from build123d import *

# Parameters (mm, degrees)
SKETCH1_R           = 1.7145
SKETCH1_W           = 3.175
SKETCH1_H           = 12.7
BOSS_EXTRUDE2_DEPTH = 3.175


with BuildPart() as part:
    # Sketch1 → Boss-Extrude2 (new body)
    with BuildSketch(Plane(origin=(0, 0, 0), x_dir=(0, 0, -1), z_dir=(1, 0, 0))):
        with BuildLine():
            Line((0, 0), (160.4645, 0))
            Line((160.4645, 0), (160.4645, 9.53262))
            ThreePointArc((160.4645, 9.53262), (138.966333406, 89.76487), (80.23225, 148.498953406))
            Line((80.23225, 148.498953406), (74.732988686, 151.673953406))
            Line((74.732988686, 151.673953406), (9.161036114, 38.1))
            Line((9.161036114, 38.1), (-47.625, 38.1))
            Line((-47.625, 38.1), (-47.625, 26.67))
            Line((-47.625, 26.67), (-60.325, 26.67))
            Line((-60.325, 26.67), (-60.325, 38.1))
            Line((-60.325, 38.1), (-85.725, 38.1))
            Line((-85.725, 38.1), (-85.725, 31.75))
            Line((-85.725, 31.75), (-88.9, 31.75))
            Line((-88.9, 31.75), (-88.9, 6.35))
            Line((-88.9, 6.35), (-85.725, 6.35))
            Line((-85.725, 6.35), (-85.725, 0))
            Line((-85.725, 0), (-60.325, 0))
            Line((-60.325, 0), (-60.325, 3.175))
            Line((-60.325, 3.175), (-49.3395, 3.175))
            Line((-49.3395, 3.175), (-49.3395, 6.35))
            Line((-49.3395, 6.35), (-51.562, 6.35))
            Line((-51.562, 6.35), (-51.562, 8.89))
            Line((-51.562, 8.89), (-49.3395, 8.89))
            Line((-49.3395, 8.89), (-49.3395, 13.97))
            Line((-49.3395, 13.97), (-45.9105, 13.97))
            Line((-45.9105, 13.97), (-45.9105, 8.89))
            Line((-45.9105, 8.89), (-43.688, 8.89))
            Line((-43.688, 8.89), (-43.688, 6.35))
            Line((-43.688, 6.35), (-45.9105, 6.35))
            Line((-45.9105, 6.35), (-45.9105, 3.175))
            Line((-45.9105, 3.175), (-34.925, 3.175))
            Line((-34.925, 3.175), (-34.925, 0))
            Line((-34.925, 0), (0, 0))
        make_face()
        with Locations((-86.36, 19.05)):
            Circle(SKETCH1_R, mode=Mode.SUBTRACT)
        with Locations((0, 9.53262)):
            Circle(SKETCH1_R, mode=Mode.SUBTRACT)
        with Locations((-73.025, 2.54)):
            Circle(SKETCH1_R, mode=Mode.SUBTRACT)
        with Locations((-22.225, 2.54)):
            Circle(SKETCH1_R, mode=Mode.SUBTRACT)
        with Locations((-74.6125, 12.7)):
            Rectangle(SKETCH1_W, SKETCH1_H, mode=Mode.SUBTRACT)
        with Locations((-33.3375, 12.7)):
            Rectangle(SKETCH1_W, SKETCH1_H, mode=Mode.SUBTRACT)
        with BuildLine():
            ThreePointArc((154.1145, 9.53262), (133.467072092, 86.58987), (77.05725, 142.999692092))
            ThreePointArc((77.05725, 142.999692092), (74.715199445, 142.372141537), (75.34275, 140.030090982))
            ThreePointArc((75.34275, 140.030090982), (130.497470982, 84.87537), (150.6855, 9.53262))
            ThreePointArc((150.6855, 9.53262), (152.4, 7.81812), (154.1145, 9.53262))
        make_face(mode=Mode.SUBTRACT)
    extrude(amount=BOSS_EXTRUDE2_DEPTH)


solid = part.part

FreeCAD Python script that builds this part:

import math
import FreeCAD as App
import Part
import Sketcher
from FreeCAD import Vector
Q = App.Units.Quantity

doc = App.newDocument("Part")
body = doc.addObject("PartDesign::Body", "Body")

# Sketch on YZ plane
sketch1 = doc.addObject("Sketcher::SketchObject", "Sketch")
body.addObject(sketch1)
sketch1.AttachmentSupport = (doc.YZ_Plane, [""])
sketch1.MapMode = "FlatFace"
sketch1.addGeometry([
    Part.LineSegment(Vector(0, -160.4645, 0), Vector(9.53262, -160.4645, 0)),  # 0
    Part.ArcOfCircle(Part.Circle(Vector(9.53262, 0, 0), Vector(0, 0, 1), 160.4645), math.radians(-90), math.radians(-30)),  # 1
    Part.LineSegment(Vector(148.498953, -80.23225, 0), Vector(151.673953, -74.732989, 0)),  # 2
    Part.LineSegment(Vector(151.673953, -74.732989, 0), Vector(38.1, -9.161036, 0)),  # 3
    Part.LineSegment(Vector(38.1, -9.161036, 0), Vector(38.1, 47.625, 0)),  # 4
    Part.LineSegment(Vector(38.1, 47.625, 0), Vector(26.67, 47.625, 0)),  # 5
    Part.LineSegment(Vector(26.67, 47.625, 0), Vector(26.67, 60.325, 0)),  # 6
    Part.LineSegment(Vector(26.67, 60.325, 0), Vector(38.1, 60.325, 0)),  # 7
    Part.LineSegment(Vector(38.1, 60.325, 0), Vector(38.1, 85.725, 0)),  # 8
    Part.LineSegment(Vector(38.1, 85.725, 0), Vector(31.75, 85.725, 0)),  # 9
    Part.LineSegment(Vector(31.75, 85.725, 0), Vector(31.75, 88.9, 0)),  # 10
    Part.LineSegment(Vector(31.75, 88.9, 0), Vector(6.35, 88.9, 0)),  # 11
    Part.LineSegment(Vector(6.35, 88.9, 0), Vector(6.35, 85.725, 0)),  # 12
    Part.LineSegment(Vector(6.35, 85.725, 0), Vector(0, 85.725, 0)),  # 13
    Part.LineSegment(Vector(0, 85.725, 0), Vector(0, 60.325, 0)),  # 14
    Part.LineSegment(Vector(0, 60.325, 0), Vector(3.175, 60.325, 0)),  # 15
    Part.LineSegment(Vector(3.175, 60.325, 0), Vector(3.175, 49.3395, 0)),  # 16
    Part.LineSegment(Vector(3.175, 49.3395, 0), Vector(6.35, 49.3395, 0)),  # 17
    Part.LineSegment(Vector(6.35, 49.3395, 0), Vector(6.35, 51.562, 0)),  # 18
    Part.LineSegment(Vector(6.35, 51.562, 0), Vector(8.89, 51.562, 0)),  # 19
    Part.LineSegment(Vector(8.89, 51.562, 0), Vector(8.89, 49.3395, 0)),  # 20
    Part.LineSegment(Vector(8.89, 49.3395, 0), Vector(13.97, 49.3395, 0)),  # 21
    Part.LineSegment(Vector(13.97, 49.3395, 0), Vector(13.97, 45.9105, 0)),  # 22
    Part.LineSegment(Vector(13.97, 45.9105, 0), Vector(8.89, 45.9105, 0)),  # 23
    Part.LineSegment(Vector(8.89, 45.9105, 0), Vector(8.89, 43.688, 0)),  # 24
    Part.LineSegment(Vector(8.89, 43.688, 0), Vector(6.35, 43.688, 0)),  # 25
    Part.LineSegment(Vector(6.35, 43.688, 0), Vector(6.35, 45.9105, 0)),  # 26
    Part.LineSegment(Vector(6.35, 45.9105, 0), Vector(3.175, 45.9105, 0)),  # 27
    Part.LineSegment(Vector(3.175, 45.9105, 0), Vector(3.175, 34.925, 0)),  # 28
    Part.LineSegment(Vector(3.175, 34.925, 0), Vector(0, 34.925, 0)),  # 29
    Part.LineSegment(Vector(0, 34.925, 0), Vector(0, -160.4645, 0)),  # 30
    Part.Circle(Vector(2.54, 73.025, 0), Vector(0, 0, 1), 1.7145),  # 31
    Part.LineSegment(Vector(6.35, 73.025, 0), Vector(6.35, 76.2, 0)),  # 32
    Part.LineSegment(Vector(6.35, 76.2, 0), Vector(19.05, 76.2, 0)),  # 33
    Part.LineSegment(Vector(19.05, 76.2, 0), Vector(19.05, 73.025, 0)),  # 34
    Part.LineSegment(Vector(19.05, 73.025, 0), Vector(6.35, 73.025, 0)),  # 35
    Part.LineSegment(Vector(6.35, 31.75, 0), Vector(6.35, 34.925, 0)),  # 36
    Part.LineSegment(Vector(6.35, 34.925, 0), Vector(19.05, 34.925, 0)),  # 37
    Part.LineSegment(Vector(19.05, 34.925, 0), Vector(19.05, 31.75, 0)),  # 38
    Part.LineSegment(Vector(19.05, 31.75, 0), Vector(6.35, 31.75, 0)),  # 39
    Part.Circle(Vector(19.05, 86.36, 0), Vector(0, 0, 1), 1.7145),  # 40
    Part.Circle(Vector(2.54, 22.225, 0), Vector(0, 0, 1), 1.7145),  # 41
    Part.Circle(Vector(9.53262, 0, 0), Vector(0, 0, 1), 1.7145),  # 42
    Part.ArcOfCircle(Part.Circle(Vector(9.53262, 0, 0), Vector(0, 0, 1), 154.1145), math.radians(-90), math.radians(-30)),  # 43
    Part.ArcOfCircle(Part.Circle(Vector(9.53262, -152.4, 0), Vector(0, 0, 1), 1.7145), math.radians(90), math.radians(270)),  # 44
    Part.ArcOfCircle(Part.Circle(Vector(9.53262, 0, 0), Vector(0, 0, 1), 150.6855), math.radians(-90), math.radians(-30)),  # 45
    Part.ArcOfCircle(Part.Circle(Vector(141.514892, -76.2, 0), Vector(0, 0, 1), 1.7145), math.radians(-30), math.radians(150)),  # 46
], False)
sketch1.addConstraint([
    Sketcher.Constraint("Tangent", 0, 2, 1, 1),
    Sketcher.Constraint("Tangent", 1, 2, 2, 1),
    Sketcher.Constraint("Coincident", 2, 2, 3, 1),
    Sketcher.Constraint("Coincident", 3, 2, 4, 1),
    Sketcher.Constraint("Coincident", 4, 2, 5, 1),
    Sketcher.Constraint("Coincident", 5, 2, 6, 1),
    Sketcher.Constraint("Coincident", 6, 2, 7, 1),
    Sketcher.Constraint("Coincident", 7, 2, 8, 1),
    Sketcher.Constraint("Coincident", 8, 2, 9, 1),
    Sketcher.Constraint("Coincident", 9, 2, 10, 1),
    Sketcher.Constraint("Coincident", 10, 2, 11, 1),
    Sketcher.Constraint("Coincident", 11, 2, 12, 1),
    Sketcher.Constraint("Coincident", 12, 2, 13, 1),
    Sketcher.Constraint("Coincident", 13, 2, 14, 1),
    Sketcher.Constraint("Coincident", 14, 2, 15, 1),
    Sketcher.Constraint("Coincident", 15, 2, 16, 1),
    Sketcher.Constraint("Coincident", 16, 2, 17, 1),
    Sketcher.Constraint("Coincident", 17, 2, 18, 1),
    Sketcher.Constraint("Coincident", 18, 2, 19, 1),
    Sketcher.Constraint("Coincident", 19, 2, 20, 1),
    Sketcher.Constraint("Coincident", 20, 2, 21, 1),
    Sketcher.Constraint("Coincident", 21, 2, 22, 1),
    Sketcher.Constraint("Coincident", 22, 2, 23, 1),
    Sketcher.Constraint("Coincident", 23, 2, 24, 1),
    Sketcher.Constraint("Coincident", 24, 2, 25, 1),
    Sketcher.Constraint("Coincident", 25, 2, 26, 1),
    Sketcher.Constraint("Coincident", 26, 2, 27, 1),
    Sketcher.Constraint("Coincident", 27, 2, 28, 1),
    Sketcher.Constraint("Coincident", 28, 2, 29, 1),
    Sketcher.Constraint("Coincident", 29, 2, 30, 1),
    Sketcher.Constraint("Coincident", 30, 2, 0, 1),
    Sketcher.Constraint("Coincident", 32, 2, 33, 1),
    Sketcher.Constraint("Coincident", 33, 2, 34, 1),
    Sketcher.Constraint("Coincident", 34, 2, 35, 1),
    Sketcher.Constraint("Coincident", 35, 2, 32, 1),
    Sketcher.Constraint("Coincident", 36, 2, 37, 1),
    Sketcher.Constraint("Coincident", 37, 2, 38, 1),
    Sketcher.Constraint("Coincident", 38, 2, 39, 1),
    Sketcher.Constraint("Coincident", 39, 2, 36, 1),
    Sketcher.Constraint("Tangent", 43, 1, 44, 2),
    Sketcher.Constraint("Tangent", 44, 1, 45, 1),
    Sketcher.Constraint("Tangent", 45, 2, 46, 2),
    Sketcher.Constraint("Tangent", 46, 1, 43, 2),
    Sketcher.Constraint("Horizontal", 0),
    Sketcher.Constraint("Vertical", 4),
    Sketcher.Constraint("Horizontal", 5),
    Sketcher.Constraint("Vertical", 6),
    Sketcher.Constraint("Horizontal", 7),
    Sketcher.Constraint("Vertical", 8),
    Sketcher.Constraint("Horizontal", 9),
    Sketcher.Constraint("Vertical", 10),
    Sketcher.Constraint("Horizontal", 11),
    Sketcher.Constraint("Vertical", 12),
    Sketcher.Constraint("Horizontal", 13),
    Sketcher.Constraint("Vertical", 14),
    Sketcher.Constraint("Horizontal", 15),
    Sketcher.Constraint("Vertical", 16),
    Sketcher.Constraint("Horizontal", 17),
    Sketcher.Constraint("Vertical", 18),
    Sketcher.Constraint("Horizontal", 19),
    Sketcher.Constraint("Vertical", 20),
    Sketcher.Constraint("Horizontal", 21),
    Sketcher.Constraint("Vertical", 22),
    Sketcher.Constraint("Horizontal", 23),
    Sketcher.Constraint("Vertical", 24),
    Sketcher.Constraint("Horizontal", 25),
    Sketcher.Constraint("Vertical", 26),
    Sketcher.Constraint("Horizontal", 27),
    Sketcher.Constraint("Vertical", 28),
    Sketcher.Constraint("Horizontal", 29),
    Sketcher.Constraint("Vertical", 30),
    Sketcher.Constraint("Vertical", 32),
    Sketcher.Constraint("Horizontal", 33),
    Sketcher.Constraint("Vertical", 34),
    Sketcher.Constraint("Horizontal", 35),
    Sketcher.Constraint("Vertical", 36),
    Sketcher.Constraint("Horizontal", 37),
    Sketcher.Constraint("Vertical", 38),
    Sketcher.Constraint("Horizontal", 39),
    Sketcher.Constraint("Coincident", 42, 3, 1, 3),
    Sketcher.Constraint("Coincident", 43, 3, 1, 3),
    Sketcher.Constraint("Coincident", 45, 3, 1, 3),
    Sketcher.Constraint("Equal", 31, 40),
    Sketcher.Constraint("Equal", 40, 41),
    Sketcher.Constraint("Equal", 41, 42),
    Sketcher.Constraint("Equal", 42, 44),
    Sketcher.Constraint("PointOnObject", 1, 3, -1),
    Sketcher.Constraint("PointOnObject", 13, 2, -2),
    Sketcher.Constraint("PointOnObject", 29, 2, -2),
    Sketcher.Constraint("Perpendicular", 2, 3),
    Sketcher.Constraint("Horizontal", 9, 2, 12, 2),
    Sketcher.Constraint("Horizontal", 7, 2, 14, 2),
    Sketcher.Constraint("Horizontal", 17, 2, 20, 2),
    Sketcher.Constraint("Horizontal", 23, 2, 26, 2),
    Sketcher.Constraint("Horizontal", 31, 3, 34, 2),
    Sketcher.Constraint("Horizontal", 29, 2, 36, 2),
    Sketcher.Constraint("Vertical", 31, 3, 41, 3),
    Sketcher.Constraint("Vertical", 43, 3, 44, 3),
    Sketcher.Constraint("Vertical", 4, 2, 7, 2),
    Sketcher.Constraint("Vertical", 12, 2, 17, 2),
    Sketcher.Constraint("Vertical", 20, 2, 23, 2),
    Sketcher.Constraint("Vertical", 18, 2, 25, 2),
    Sketcher.Constraint("Vertical", 16, 2, 27, 2),
    Sketcher.Constraint("Vertical", 26, 2, 32, 2),
    Sketcher.Constraint("Vertical", 40, 3, 33, 2),
    Sketcher.Constraint("Vertical", 35, 2, 36, 2),
    Sketcher.Constraint("Vertical", 34, 2, 37, 2),
    Sketcher.Constraint("Equal", 9, 13),
    Sketcher.Constraint("Equal", 15, 17),
    Sketcher.Constraint("Equal", 39, 6),
    Sketcher.Constraint("Equal", 11, 8),
    Sketcher.Constraint("Equal", 29, 10),
    Sketcher.Constraint("Equal", 20, 24),
    Sketcher.Constraint("Equal", 16, 28),
    Sketcher.Constraint("Equal", 12, 32),
    Sketcher.Constraint("Equal", 34, 36),
    Sketcher.Constraint("DistanceX", 11, 2, 11, 1, Q("1 in")),
    Sketcher.Constraint("Diameter", 31, Q("0.135 in")),
    Sketcher.Constraint("DistanceX", 19, 1, 19, 2, Q("0.1 in")),
    Sketcher.Constraint("DistanceX", 21, 1, 21, 2, Q("0.2 in")),
    Sketcher.Constraint("DistanceX", 33, 1, 33, 2, Q("0.5 in")),
    Sketcher.Constraint("DistanceY", 44, 3, -1, 1, Q("6 in")),
    Sketcher.Constraint("DistanceY", 46, 3, -1, 1, Q("3 in")),
    Sketcher.Constraint("DistanceY", -1, 1, 32, 2, Q("3 in")),
    Sketcher.Constraint("Angle", 2, Q("60 deg")),
    Sketcher.Constraint("DistanceY", 41, 3, 31, 3, Q("2 in")),
    Sketcher.Constraint("DistanceY", 41, 3, 4, 2, Q("1 in")),
    Sketcher.Constraint("DistanceX", 5, 2, 5, 1, Q("0.45 in")),
    Sketcher.Constraint("DistanceX", 9, 2, 9, 1, Q("0.25 in")),
    Sketcher.Constraint("DistanceX", -1, 1, 31, 3, Q("0.1 in")),
    Sketcher.Constraint("DistanceY", -1, 1, 40, 3, Q("3.4 in")),
    Sketcher.Constraint("Radius", 1, Q("6.3175 in")),
    Sketcher.Constraint("DistanceY", 37, 2, 5, 2, Q("0.5 in")),
    Sketcher.Constraint("Distance", 2, Q("0.25 in")),
    Sketcher.Constraint("DistanceY", 22, 2, 22, 1, Q("0.135 in")),
    Sketcher.Constraint("DistanceY", -1, 1, 18, 2, Q("2.03 in")),
    Sketcher.Constraint("DistanceX", 0, 1, 0, 2, Q("0.3753 in")),
])
pad1 = doc.addObject("PartDesign::Pad", "Pad")
body.addObject(pad1)
pad1.Profile = sketch1
pad1.Length = Q("0.125 in")

doc.recompute()
